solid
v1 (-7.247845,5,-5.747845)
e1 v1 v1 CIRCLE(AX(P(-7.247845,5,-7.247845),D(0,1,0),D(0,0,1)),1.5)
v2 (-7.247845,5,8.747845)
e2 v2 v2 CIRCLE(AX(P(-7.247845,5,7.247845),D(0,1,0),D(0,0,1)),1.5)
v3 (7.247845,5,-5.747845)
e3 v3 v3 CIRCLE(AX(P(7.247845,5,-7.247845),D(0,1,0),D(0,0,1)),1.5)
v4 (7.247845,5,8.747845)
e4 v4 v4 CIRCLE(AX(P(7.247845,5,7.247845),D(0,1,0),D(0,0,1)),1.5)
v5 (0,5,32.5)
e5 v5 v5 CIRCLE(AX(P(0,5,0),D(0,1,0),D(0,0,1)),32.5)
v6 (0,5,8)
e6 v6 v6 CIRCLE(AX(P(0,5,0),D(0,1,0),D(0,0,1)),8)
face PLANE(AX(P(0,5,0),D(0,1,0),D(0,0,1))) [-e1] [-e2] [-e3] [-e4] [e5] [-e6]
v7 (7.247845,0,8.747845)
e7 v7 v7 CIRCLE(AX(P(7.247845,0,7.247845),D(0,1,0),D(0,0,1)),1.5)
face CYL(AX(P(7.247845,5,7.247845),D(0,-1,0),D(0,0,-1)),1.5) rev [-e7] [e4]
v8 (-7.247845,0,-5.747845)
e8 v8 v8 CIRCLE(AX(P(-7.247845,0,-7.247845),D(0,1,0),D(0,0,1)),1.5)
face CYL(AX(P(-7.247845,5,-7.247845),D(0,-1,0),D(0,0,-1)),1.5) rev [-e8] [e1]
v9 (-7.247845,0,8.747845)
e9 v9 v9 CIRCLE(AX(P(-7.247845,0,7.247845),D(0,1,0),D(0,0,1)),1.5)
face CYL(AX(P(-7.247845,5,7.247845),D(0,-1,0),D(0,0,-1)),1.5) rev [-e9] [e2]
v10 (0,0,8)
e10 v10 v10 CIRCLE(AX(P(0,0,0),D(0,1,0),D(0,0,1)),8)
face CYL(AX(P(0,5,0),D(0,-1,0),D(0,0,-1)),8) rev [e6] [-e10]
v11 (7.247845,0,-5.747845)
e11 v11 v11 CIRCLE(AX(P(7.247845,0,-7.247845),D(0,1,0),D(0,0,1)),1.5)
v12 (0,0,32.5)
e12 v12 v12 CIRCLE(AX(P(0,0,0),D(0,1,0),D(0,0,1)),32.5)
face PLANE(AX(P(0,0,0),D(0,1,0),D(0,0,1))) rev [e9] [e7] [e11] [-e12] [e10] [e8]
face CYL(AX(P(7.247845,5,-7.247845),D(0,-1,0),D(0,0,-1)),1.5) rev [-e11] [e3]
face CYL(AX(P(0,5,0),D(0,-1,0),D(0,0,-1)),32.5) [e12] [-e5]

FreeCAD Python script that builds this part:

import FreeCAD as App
import Part
import Sketcher
Q = App.Units.Quantity

doc = App.newDocument("Part")
body = doc.addObject("PartDesign::Body", "Body")

# Sketch on XZ plane
sketch1 = body.newObject("Sketcher::SketchObject", "Sketch")
sketch1.AttachmentSupport = (doc.getObject("XZ_Plane"), [""])
sketch1.MapMode = "FlatFace"
sketch1.addGeometry([
    Part.Circle(App.Vector(0, 0, 0), App.Vector(0, 0, 1), 32.5),  # 0
    Part.Circle(App.Vector(-7.247845, 7.247845, 0), App.Vector(0, 0, 1), 1.5),  # 1
    Part.Circle(App.Vector(7.247845, 7.247845, 0), App.Vector(0, 0, 1), 1.5),  # 2
    Part.Circle(App.Vector(-7.247845, -7.247845, 0), App.Vector(0, 0, 1), 1.5),  # 3
    Part.Circle(App.Vector(0, 0, 0), App.Vector(0, 0, 1), 8),  # 4
    Part.Circle(App.Vector(7.247845, -7.247845, 0), App.Vector(0, 0, 1), 1.5),  # 5
], False)
sketch1.addConstraint([
    Sketcher.Constraint("Coincident", 0, 3, -1, 1),
    Sketcher.Constraint("Coincident", 4, 3, -1, 1),
    Sketcher.Constraint("Equal", 1, 2),
    Sketcher.Constraint("Equal", 2, 3),
    Sketcher.Constraint("Equal", 3, 5),
    Sketcher.Constraint("Symmetric", 2, 3, 3, 3, -1, 1),
    Sketcher.Constraint("Symmetric", 1, 3, 5, 3, -1, 1),
    Sketcher.Constraint("Symmetric", 1, 3, 2, 3, -2),
    Sketcher.Constraint("Diameter", 0, Q("65 mm")),
    Sketcher.Constraint("Diameter", 1, Q("3 mm")),
    Sketcher.Constraint("Diameter", 4, Q("16 mm")),
    Sketcher.Constraint("DistanceX", 1, 3, 2, 3, Q("14.495689 mm")),
    Sketcher.Constraint("DistanceY", 3, 3, 1, 3, Q("14.495689 mm")),
])
pad1 = body.newObject("PartDesign::Pad", "Pad")
pad1.Profile = sketch1
pad1.Length = 5
pad1.Reversed = True

doc.recompute()
